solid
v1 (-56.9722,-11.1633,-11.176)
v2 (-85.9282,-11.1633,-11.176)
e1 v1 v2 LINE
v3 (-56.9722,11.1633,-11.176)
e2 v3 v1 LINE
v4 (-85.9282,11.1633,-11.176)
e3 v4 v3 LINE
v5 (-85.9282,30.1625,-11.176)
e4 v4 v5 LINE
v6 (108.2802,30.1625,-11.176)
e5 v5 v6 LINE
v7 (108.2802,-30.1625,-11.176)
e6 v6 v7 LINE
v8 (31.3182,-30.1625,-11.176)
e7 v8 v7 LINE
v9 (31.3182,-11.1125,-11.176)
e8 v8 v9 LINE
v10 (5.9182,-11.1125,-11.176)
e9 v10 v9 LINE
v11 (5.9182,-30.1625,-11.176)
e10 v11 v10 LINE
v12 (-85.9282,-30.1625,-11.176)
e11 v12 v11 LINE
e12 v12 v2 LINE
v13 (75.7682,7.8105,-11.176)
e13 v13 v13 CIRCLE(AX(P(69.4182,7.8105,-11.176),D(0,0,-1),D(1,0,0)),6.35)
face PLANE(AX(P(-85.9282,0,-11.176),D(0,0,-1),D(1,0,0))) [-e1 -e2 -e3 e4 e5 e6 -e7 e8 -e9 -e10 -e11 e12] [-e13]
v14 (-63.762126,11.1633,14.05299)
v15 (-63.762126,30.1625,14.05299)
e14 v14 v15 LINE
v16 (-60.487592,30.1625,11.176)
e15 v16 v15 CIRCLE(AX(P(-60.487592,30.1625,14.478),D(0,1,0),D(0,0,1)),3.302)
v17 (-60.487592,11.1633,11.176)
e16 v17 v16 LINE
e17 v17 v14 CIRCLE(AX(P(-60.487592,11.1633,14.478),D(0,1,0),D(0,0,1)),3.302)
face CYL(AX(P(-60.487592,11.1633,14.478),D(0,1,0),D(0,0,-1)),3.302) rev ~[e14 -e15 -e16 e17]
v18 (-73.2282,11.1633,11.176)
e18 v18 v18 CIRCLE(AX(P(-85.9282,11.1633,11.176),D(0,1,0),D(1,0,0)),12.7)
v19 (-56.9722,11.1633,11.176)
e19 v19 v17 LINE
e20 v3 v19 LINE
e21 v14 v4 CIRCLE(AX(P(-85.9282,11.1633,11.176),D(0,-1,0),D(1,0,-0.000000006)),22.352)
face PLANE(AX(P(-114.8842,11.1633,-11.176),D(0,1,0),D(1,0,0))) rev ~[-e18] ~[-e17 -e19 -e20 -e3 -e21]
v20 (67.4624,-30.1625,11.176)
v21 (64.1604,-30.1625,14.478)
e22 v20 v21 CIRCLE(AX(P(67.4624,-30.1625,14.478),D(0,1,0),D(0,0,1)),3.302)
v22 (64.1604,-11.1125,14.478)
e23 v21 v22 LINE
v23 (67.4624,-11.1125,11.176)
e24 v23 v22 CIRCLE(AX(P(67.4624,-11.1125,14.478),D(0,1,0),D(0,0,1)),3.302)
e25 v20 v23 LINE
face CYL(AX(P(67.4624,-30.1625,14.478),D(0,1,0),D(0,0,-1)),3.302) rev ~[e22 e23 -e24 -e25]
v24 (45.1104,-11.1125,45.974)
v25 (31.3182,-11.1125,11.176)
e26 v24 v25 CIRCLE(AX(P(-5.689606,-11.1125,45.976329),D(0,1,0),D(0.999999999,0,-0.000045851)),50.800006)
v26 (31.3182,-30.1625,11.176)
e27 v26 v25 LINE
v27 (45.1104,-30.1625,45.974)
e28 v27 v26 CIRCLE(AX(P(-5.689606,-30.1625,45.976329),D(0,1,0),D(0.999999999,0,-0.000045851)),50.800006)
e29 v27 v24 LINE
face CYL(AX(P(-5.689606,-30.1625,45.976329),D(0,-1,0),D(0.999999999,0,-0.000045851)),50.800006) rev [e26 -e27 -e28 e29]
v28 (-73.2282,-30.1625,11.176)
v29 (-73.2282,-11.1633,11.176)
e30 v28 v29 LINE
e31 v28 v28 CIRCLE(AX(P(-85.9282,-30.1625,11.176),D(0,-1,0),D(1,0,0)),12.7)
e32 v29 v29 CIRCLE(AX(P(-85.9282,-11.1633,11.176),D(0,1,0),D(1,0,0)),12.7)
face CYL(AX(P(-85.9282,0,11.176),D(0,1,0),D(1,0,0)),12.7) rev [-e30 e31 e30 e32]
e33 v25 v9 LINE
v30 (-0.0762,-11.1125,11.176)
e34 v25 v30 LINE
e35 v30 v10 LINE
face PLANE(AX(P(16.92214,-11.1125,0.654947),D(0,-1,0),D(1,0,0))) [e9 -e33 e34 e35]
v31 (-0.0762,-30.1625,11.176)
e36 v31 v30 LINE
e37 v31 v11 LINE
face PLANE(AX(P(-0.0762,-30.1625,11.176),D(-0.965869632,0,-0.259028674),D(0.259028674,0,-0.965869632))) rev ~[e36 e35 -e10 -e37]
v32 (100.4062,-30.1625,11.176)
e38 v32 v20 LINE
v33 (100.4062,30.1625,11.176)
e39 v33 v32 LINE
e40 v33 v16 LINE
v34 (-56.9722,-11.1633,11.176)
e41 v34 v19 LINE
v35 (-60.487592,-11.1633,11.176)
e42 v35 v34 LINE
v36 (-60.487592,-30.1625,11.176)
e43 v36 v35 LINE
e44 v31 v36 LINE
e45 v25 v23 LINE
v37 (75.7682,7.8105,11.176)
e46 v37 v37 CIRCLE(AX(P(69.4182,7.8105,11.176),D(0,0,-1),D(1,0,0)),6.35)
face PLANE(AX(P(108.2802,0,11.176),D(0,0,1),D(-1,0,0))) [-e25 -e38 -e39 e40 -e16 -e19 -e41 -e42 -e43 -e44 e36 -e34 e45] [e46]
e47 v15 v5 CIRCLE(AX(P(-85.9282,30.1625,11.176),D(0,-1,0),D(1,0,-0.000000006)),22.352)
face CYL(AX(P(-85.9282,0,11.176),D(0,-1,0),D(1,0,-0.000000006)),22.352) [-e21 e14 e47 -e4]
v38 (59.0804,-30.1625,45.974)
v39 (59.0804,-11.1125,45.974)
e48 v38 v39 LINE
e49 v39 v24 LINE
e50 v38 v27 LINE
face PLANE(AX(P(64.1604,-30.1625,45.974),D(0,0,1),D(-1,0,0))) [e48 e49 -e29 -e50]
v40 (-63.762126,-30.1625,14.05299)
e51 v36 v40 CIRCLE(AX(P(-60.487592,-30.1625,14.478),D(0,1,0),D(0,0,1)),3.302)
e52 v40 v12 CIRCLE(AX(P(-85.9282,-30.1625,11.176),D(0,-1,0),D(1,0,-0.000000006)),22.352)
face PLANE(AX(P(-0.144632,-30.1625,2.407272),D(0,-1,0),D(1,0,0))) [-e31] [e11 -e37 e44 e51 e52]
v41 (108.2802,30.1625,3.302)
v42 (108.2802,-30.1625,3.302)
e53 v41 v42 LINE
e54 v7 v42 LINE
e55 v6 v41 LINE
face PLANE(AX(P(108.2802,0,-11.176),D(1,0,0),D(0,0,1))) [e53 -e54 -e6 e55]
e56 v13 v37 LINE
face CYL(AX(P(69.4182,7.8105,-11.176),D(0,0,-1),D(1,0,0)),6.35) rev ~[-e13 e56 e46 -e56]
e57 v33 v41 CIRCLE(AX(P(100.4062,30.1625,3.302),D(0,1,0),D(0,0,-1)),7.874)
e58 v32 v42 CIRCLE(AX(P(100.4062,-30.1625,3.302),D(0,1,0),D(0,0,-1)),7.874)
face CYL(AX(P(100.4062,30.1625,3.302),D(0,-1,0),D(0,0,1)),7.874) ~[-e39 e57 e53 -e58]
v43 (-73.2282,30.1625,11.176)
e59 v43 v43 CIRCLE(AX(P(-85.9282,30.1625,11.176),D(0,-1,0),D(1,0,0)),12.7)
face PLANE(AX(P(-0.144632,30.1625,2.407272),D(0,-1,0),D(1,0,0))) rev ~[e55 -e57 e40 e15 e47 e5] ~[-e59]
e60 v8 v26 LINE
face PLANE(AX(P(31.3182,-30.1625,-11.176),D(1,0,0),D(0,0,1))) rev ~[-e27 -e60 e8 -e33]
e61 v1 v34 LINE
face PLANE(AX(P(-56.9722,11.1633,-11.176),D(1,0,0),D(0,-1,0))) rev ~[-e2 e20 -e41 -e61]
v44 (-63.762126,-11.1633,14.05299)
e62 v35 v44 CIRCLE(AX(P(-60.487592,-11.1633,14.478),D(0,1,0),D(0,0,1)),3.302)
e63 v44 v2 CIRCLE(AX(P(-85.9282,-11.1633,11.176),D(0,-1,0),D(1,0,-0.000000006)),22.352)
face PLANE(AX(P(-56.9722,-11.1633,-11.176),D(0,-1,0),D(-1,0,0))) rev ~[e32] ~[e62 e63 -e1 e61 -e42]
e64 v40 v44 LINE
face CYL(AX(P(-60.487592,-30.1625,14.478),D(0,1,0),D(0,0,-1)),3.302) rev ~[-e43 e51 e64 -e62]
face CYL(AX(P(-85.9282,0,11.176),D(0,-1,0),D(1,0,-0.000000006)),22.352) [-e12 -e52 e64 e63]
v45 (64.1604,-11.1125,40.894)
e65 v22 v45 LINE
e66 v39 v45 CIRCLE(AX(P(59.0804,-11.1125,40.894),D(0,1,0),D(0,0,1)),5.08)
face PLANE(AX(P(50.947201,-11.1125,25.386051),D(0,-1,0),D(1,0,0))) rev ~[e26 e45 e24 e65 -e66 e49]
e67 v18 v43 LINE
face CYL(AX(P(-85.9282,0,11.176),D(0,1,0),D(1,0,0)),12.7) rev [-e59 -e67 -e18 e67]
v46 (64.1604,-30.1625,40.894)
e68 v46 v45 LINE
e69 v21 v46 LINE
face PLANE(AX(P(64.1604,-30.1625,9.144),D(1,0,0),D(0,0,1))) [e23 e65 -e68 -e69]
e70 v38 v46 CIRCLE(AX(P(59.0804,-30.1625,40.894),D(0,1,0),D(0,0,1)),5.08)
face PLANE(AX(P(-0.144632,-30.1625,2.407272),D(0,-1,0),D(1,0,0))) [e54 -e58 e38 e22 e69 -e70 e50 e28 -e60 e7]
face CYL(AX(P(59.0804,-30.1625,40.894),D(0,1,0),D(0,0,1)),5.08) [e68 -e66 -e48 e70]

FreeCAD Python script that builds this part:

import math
import FreeCAD as App
import Part
import Sketcher
Q = App.Units.Quantity


def edges_at(feature, points):
    """Names of the edges that pass closest to the given points."""
    edges = feature.Shape.Edges
    near = lambda p: min(range(len(edges)), key=lambda i: edges[i].distToShape(Part.Vertex(*p))[0])
    return sorted({f"Edge{near(p) + 1}" for p in points})


def add_polygon(sketch, points):
    """Adds a closed chain of lines whose ends are joined by coincident constraints."""
    first, n = sketch.GeometryCount, len(points)
    for a, b in zip(points, points[1:] + points[:1]):
        sketch.addGeometry(Part.LineSegment(App.Vector(*a, 0), App.Vector(*b, 0)), False)
    for i in range(n):
        sketch.addConstraint(Sketcher.Constraint("Coincident", first + i, 2, first + (i + 1) % n, 1))

doc = App.newDocument("Part")
body = doc.addObject("PartDesign::Body", "Body")

sketch1 = doc.addObject("Sketcher::SketchObject", "Sketch")
body.addObject(sketch1)
sketch1.AttachmentSupport = (doc.XZ_Plane, [""])
sketch1.MapMode = "FlatFace"
sketch1.addGeometry(Part.LineSegment(App.Vector(-86, -11, 0), App.Vector(108, -11, 0)), False)
sketch1.addGeometry(Part.LineSegment(App.Vector(108, -11, 0), App.Vector(108, 11, 0)), False)
sketch1.addGeometry(Part.LineSegment(App.Vector(108, 11, 0), App.Vector(-64, 11, 0)), False)
sketch1.addGeometry(Part.ArcOfCircle(Part.Circle(App.Vector(-86, 11, 0), App.Vector(0, 0, 1), 22), math.radians(0), math.radians(270)), False)
sketch1.addGeometry(Part.Circle(App.Vector(-86, 11, 0), App.Vector(0, 0, 1), 13), False)
sketch1.addConstraint(Sketcher.Constraint("Coincident", 0, 2, 1, 1))
sketch1.addConstraint(Sketcher.Constraint("Coincident", 1, 2, 2, 1))
sketch1.addConstraint(Sketcher.Constraint("Coincident", 2, 2, 3, 1))
sketch1.addConstraint(Sketcher.Constraint("Tangent", 3, 2, 0, 1))
sketch1.addConstraint(Sketcher.Constraint("Horizontal", 0))
sketch1.addConstraint(Sketcher.Constraint("Vertical", 1))
sketch1.addConstraint(Sketcher.Constraint("Horizontal", 2))
sketch1.addConstraint(Sketcher.Constraint("Coincident", 4, 3, 3, 3))
sketch1.addConstraint(Sketcher.Constraint("Horizontal", 4, 3, 1, 2))
sketch1.addConstraint(Sketcher.Constraint("Diameter", 4, Q("1 in")))
sketch1.addConstraint(Sketcher.Constraint("Radius", 3, Q("0.88 in")))
sketch1.addConstraint(Sketcher.Constraint("DistanceX", 0, 1, 0, 2, Q("7.646 in")))
sketch1.addConstraint(Sketcher.Constraint("DistanceY", -1, 1, 3, 3, Q("0.44 in")))
sketch1.addConstraint(Sketcher.Constraint("DistanceX", 3, 3, -1, 1, Q("3.383 in")))
pad1 = doc.addObject("PartDesign::Pad", "Pad")
body.addObject(pad1)
pad1.Profile = sketch1
pad1.Length = Q("2.375 in")
pad1.Midplane = True

sketch2 = doc.addObject("Sketcher::SketchObject", "Sketch001")
body.addObject(sketch2)
sketch2.AttachmentSupport = (doc.XY_Plane, [""])
sketch2.MapMode = "FlatFace"
sketch2.AttachmentOffset = App.Placement(App.Vector(0, 0, -0.44 * 25.4), App.Rotation())
add_polygon(sketch2, [(-115, -11), (-115, 11), (-57, 11), (-57, -11)])
sketch2.addGeometry(Part.Circle(App.Vector(69, 8, 0), App.Vector(0, 0, 1), 6), False)
sketch2.addConstraint(Sketcher.Constraint("Vertical", 0))
sketch2.addConstraint(Sketcher.Constraint("Horizontal", 1))
sketch2.addConstraint(Sketcher.Constraint("Vertical", 2))
sketch2.addConstraint(Sketcher.Constraint("Horizontal", 3))
sketch2.addConstraint(Sketcher.Constraint("Diameter", 4, Q("0.5 in")))
sketch2.addConstraint(Sketcher.Constraint("DistanceX", 1, 1, 1, 2, Q("2.28 in")))
sketch2.addConstraint(Sketcher.Constraint("DistanceY", 0, 1, 0, 2, Q("0.879 in")))
sketch2.addConstraint(Sketcher.Constraint("DistanceX", -1, 1, 4, 3, Q("2.733 in")))
sketch2.addConstraint(Sketcher.Constraint("DistanceX", 0, 2, -1, 1, Q("4.523 in")))
sketch2.addConstraint(Sketcher.Constraint("DistanceY", 4, 3, 0, 2, Q("0.132 in")))
sketch2.addConstraint(Sketcher.Constraint("DistanceY", -1, 1, 4, 3, Q("0.3075 in")))
pocket1 = doc.addObject("PartDesign::Pocket", "Pocket")
body.addObject(pocket1)
pocket1.Profile = sketch2
pocket1.Type = "ThroughAll"
pocket1.Reversed = True

sketch3 = doc.addObject("Sketcher::SketchObject", "Sketch002")
body.addObject(sketch3)
sketch3.AttachmentSupport = (doc.XZ_Plane, [""])
sketch3.MapMode = "FlatFace"
sketch3.AttachmentOffset = App.Placement(App.Vector(0, 0, 1.1875 * 25.4), App.Rotation())
add_polygon(sketch3, [(31, -11), (31, 11), (0, 11), (6, -11)])
sketch3.addConstraint(Sketcher.Constraint("Vertical", 0))
sketch3.addConstraint(Sketcher.Constraint("Horizontal", 1))
sketch3.addConstraint(Sketcher.Constraint("Horizontal", 3))
sketch3.addConstraint(Sketcher.Constraint("DistanceX", 3, 1, 3, 2, Q("1 in")))
sketch3.addConstraint(Sketcher.Constraint("DistanceY", 0, 1, 0, 2, Q("0.88 in")))
sketch3.addConstraint(Sketcher.Constraint("DistanceX", 1, 2, 1, 1, Q("1.236 in")))
sketch3.addConstraint(Sketcher.Constraint("DistanceY", -1, 1, 0, 2, Q("0.44 in")))
sketch3.addConstraint(Sketcher.Constraint("DistanceX", -1, 1, 0, 2, Q("1.233 in")))
pocket2 = doc.addObject("PartDesign::Pocket", "Pocket001")
body.addObject(pocket2)
pocket2.Profile = sketch3
pocket2.Length = Q("0.75 in")

sketch4 = doc.addObject("Sketcher::SketchObject", "Sketch003")
body.addObject(sketch4)
sketch4.AttachmentSupport = (doc.XZ_Plane, [""])
sketch4.MapMode = "FlatFace"
sketch4.AttachmentOffset = App.Placement(App.Vector(0, 0, 1.1875 * 25.4), App.Rotation())
sketch4.addGeometry(Part.LineSegment(App.Vector(31.3, 9.1, 0), App.Vector(64.2, 9.1, 0)), False)
sketch4.addGeometry(Part.LineSegment(App.Vector(64.2, 9.1, 0), App.Vector(64.2, 46, 0)), False)
sketch4.addGeometry(Part.LineSegment(App.Vector(64.2, 46, 0), App.Vector(45.1, 46, 0)), False)
sketch4.addGeometry(Part.ArcOfCircle(Part.Circle(App.Vector(-5.7, 46, 0), App.Vector(0, 0, 1), 50.8), math.radians(-43), math.radians(0)), False)
sketch4.addGeometry(Part.LineSegment(App.Vector(31.3, 11.2, 0), App.Vector(31.3, 9.1, 0)), False)
sketch4.addConstraint(Sketcher.Constraint("Coincident", 0, 2, 1, 1))
sketch4.addConstraint(Sketcher.Constraint("Coincident", 1, 2, 2, 1))
sketch4.addConstraint(Sketcher.Constraint("Coincident", 2, 2, 3, 2))
sketch4.addConstraint(Sketcher.Constraint("Coincident", 3, 1, 4, 1))
sketch4.addConstraint(Sketcher.Constraint("Coincident", 4, 2, 0, 1))
sketch4.addConstraint(Sketcher.Constraint("Horizontal", 0))
sketch4.addConstraint(Sketcher.Constraint("Vertical", 1))
sketch4.addConstraint(Sketcher.Constraint("Horizontal", 2))
sketch4.addConstraint(Sketcher.Constraint("Vertical", 4))
sketch4.addConstraint(Sketcher.Constraint("DistanceX", 2, 2, 2, 1, Q("0.75 in")))
sketch4.addConstraint(Sketcher.Constraint("DistanceY", 1, 1, 1, 2, Q("1.45 in")))
sketch4.addConstraint(Sketcher.Constraint("DistanceY", 4, 2, 4, 1, Q("0.08 in")))
sketch4.addConstraint(Sketcher.Constraint("DistanceX", 0, 1, 0, 2, Q("1.293 in")))
sketch4.addConstraint(Sketcher.Constraint("DistanceY", -1, 1, 0, 2, Q("0.36 in")))
sketch4.addConstraint(Sketcher.Constraint("DistanceX", -1, 1, 0, 2, Q("2.526 in")))
sketch4.addConstraint(Sketcher.Constraint("Radius", 3, 50.800006))
pad2 = doc.addObject("PartDesign::Pad", "Pad001")
body.addObject(pad2)
pad2.Profile = sketch4
pad2.Length = Q("0.75 in")
pad2.Reversed = True
doc.recompute()

fillet = doc.addObject("PartDesign::Fillet", "Fillet")
body.addObject(fillet)
fillet.Base = (pad2, edges_at(pad2, [(-63.576, -20.663, 11.176), (-63.576, 20.663, 11.176)]))
fillet.Radius = Q("0.13 in")
doc.recompute()

fillet2 = doc.addObject("PartDesign::Fillet", "Fillet001")
body.addObject(fillet2)
fillet2.Base = (fillet, edges_at(fillet, [(108.28, 0, 11.176)]))
fillet2.Radius = Q("0.31 in")
doc.recompute()

fillet3 = doc.addObject("PartDesign::Fillet", "Fillet002")
body.addObject(fillet3)
fillet3.Base = (fillet2, edges_at(fillet2, [(64.16, -20.637, 11.176)]))
fillet3.Radius = Q("0.13 in")
doc.recompute()

fillet4 = doc.addObject("PartDesign::Fillet", "Fillet003")
body.addObject(fillet4)
fillet4.Base = (fillet3, edges_at(fillet3, [(64.16, -20.637, 45.974)]))
fillet4.Radius = Q("0.2 in")

doc.recompute()
